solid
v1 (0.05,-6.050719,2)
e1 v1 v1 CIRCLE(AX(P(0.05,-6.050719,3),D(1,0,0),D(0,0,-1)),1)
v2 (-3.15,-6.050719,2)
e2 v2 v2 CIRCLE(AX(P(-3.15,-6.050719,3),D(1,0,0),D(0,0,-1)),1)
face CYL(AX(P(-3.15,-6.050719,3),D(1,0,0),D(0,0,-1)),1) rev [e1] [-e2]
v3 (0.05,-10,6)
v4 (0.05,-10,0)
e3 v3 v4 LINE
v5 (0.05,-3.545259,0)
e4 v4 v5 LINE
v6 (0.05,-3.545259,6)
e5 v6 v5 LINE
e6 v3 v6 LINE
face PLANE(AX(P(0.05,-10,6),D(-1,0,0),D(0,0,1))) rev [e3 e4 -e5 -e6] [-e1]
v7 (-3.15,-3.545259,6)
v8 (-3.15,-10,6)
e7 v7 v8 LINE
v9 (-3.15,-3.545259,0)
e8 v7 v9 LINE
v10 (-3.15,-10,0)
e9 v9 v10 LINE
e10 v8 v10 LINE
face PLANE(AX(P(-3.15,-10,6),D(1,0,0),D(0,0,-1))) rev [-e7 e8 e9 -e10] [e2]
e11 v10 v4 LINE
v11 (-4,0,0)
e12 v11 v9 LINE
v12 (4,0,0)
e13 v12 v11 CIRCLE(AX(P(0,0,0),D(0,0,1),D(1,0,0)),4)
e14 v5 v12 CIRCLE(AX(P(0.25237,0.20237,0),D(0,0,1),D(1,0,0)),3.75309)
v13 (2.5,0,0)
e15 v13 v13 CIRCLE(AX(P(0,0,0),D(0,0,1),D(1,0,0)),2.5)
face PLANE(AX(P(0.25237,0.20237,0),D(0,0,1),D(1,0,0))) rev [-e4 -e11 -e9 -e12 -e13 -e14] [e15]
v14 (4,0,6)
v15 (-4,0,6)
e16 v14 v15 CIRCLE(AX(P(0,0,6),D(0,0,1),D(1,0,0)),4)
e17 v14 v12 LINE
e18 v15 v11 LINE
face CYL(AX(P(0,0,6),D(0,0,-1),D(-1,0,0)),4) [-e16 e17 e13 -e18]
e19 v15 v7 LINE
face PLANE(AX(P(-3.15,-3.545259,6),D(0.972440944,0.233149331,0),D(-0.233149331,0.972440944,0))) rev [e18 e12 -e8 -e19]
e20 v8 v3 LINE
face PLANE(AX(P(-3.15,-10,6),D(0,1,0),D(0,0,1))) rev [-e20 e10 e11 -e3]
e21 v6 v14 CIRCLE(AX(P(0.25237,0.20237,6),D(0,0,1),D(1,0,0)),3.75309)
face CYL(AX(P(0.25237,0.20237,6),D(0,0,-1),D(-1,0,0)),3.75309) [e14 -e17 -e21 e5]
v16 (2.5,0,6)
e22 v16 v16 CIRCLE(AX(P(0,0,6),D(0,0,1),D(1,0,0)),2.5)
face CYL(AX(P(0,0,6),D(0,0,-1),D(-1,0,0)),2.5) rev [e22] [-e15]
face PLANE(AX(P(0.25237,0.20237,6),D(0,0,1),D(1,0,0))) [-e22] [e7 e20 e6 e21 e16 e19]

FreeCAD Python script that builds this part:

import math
import FreeCAD as App
import Part
import Sketcher
from FreeCAD import Vector
Q = App.Units.Quantity

doc = App.newDocument("Part")
body = doc.addObject("PartDesign::Body", "Body")

# Sketch on XY plane
sketch1 = body.newObject("Sketcher::SketchObject", "Sketch")
sketch1.AttachmentSupport = (doc.getObject("XY_Plane"), [""])
sketch1.MapMode = "FlatFace"
sketch1.addGeometry([
    Part.LineSegment(Vector(-3.15, -3.545259, 0), Vector(-3.15, -10, 0)),  # 0
    Part.LineSegment(Vector(-3.15, -10, 0), Vector(0.05, -10, 0)),  # 1
    Part.LineSegment(Vector(0.05, -10, 0), Vector(0.05, -3.545259, 0)),  # 2
    Part.ArcOfCircle(Part.Circle(Vector(0.25237, 0.20237, 0), Vector(0, 0, 1), 3.75309), math.radians(-93.090946), math.radians(-3.090946)),  # 3
    Part.ArcOfCircle(Part.Circle(Vector(0, 0, 0), Vector(0, 0, 1), 4), math.radians(0), math.radians(180)),  # 4
    Part.LineSegment(Vector(-4, 0, 0), Vector(-3.15, -3.545259, 0)),  # 5
    Part.Circle(Vector(0, 0, 0), Vector(0, 0, 1), 2.5),  # 6
], False)
sketch1.addConstraint([
    Sketcher.Constraint("Coincident", 0, 2, 1, 1),
    Sketcher.Constraint("Coincident", 1, 2, 2, 1),
    Sketcher.Constraint("Coincident", 2, 2, 3, 1),
    Sketcher.Constraint("Coincident", 3, 2, 4, 1),
    Sketcher.Constraint("Coincident", 4, 2, 5, 1),
    Sketcher.Constraint("Coincident", 5, 2, 0, 1),
    Sketcher.Constraint("Vertical", 0),
    Sketcher.Constraint("Horizontal", 1),
    Sketcher.Constraint("Vertical", 2),
    Sketcher.Constraint("Coincident", 4, 3, -1, 1),
    Sketcher.Constraint("Coincident", 6, 3, -1, 1),
    Sketcher.Constraint("PointOnObject", 3, 2, -1),
    Sketcher.Constraint("PointOnObject", 4, 2, -1),
    Sketcher.Constraint("Horizontal", 2, 2, 5, 2),
    Sketcher.Constraint("Diameter", 6, Q("5 mm")),
    Sketcher.Constraint("Radius", 4, Q("4 mm")),
    Sketcher.Constraint("DistanceX", 1, 1, 1, 2, Q("3.2 mm")),
    Sketcher.Constraint("DistanceY", 0, 2, -1, 1, Q("10 mm")),
    Sketcher.Constraint("DistanceX", 0, 2, -1, 1, Q("3.15 mm")),
    Sketcher.Constraint("Radius", 3, Q("3.75309 mm")),
    Sketcher.Constraint("DistanceY", 0, 2, 0, 1, Q("6.454741 mm")),
])
pad1 = body.newObject("PartDesign::Pad", "Pad")
pad1.Profile = sketch1
pad1.Length = 6

# Sketch on YZ plane
sketch2 = body.newObject("Sketcher::SketchObject", "Sketch001")
sketch2.AttachmentSupport = (doc.getObject("YZ_Plane"), [""])
sketch2.MapMode = "FlatFace"
sketch2.AttachmentOffset = App.Placement(Vector(0, 0, 0.05), App.Rotation())
sketch2.addGeometry(Part.Circle(Vector(-6.050719, 3, 0), Vector(0, 0, 1), 1), False)
sketch2.addConstraint([
    Sketcher.Constraint("Diameter", 0, Q("2 mm")),
    Sketcher.Constraint("DistanceY", -1, 1, 0, 3, Q("3 mm")),
    Sketcher.Constraint("DistanceX", 0, 3, -1, 1, Q("6.050719 mm")),
])
pocket1 = body.newObject("PartDesign::Pocket", "Pocket")
pocket1.Profile = sketch2
pocket1.Length = 3.2

doc.recompute()
